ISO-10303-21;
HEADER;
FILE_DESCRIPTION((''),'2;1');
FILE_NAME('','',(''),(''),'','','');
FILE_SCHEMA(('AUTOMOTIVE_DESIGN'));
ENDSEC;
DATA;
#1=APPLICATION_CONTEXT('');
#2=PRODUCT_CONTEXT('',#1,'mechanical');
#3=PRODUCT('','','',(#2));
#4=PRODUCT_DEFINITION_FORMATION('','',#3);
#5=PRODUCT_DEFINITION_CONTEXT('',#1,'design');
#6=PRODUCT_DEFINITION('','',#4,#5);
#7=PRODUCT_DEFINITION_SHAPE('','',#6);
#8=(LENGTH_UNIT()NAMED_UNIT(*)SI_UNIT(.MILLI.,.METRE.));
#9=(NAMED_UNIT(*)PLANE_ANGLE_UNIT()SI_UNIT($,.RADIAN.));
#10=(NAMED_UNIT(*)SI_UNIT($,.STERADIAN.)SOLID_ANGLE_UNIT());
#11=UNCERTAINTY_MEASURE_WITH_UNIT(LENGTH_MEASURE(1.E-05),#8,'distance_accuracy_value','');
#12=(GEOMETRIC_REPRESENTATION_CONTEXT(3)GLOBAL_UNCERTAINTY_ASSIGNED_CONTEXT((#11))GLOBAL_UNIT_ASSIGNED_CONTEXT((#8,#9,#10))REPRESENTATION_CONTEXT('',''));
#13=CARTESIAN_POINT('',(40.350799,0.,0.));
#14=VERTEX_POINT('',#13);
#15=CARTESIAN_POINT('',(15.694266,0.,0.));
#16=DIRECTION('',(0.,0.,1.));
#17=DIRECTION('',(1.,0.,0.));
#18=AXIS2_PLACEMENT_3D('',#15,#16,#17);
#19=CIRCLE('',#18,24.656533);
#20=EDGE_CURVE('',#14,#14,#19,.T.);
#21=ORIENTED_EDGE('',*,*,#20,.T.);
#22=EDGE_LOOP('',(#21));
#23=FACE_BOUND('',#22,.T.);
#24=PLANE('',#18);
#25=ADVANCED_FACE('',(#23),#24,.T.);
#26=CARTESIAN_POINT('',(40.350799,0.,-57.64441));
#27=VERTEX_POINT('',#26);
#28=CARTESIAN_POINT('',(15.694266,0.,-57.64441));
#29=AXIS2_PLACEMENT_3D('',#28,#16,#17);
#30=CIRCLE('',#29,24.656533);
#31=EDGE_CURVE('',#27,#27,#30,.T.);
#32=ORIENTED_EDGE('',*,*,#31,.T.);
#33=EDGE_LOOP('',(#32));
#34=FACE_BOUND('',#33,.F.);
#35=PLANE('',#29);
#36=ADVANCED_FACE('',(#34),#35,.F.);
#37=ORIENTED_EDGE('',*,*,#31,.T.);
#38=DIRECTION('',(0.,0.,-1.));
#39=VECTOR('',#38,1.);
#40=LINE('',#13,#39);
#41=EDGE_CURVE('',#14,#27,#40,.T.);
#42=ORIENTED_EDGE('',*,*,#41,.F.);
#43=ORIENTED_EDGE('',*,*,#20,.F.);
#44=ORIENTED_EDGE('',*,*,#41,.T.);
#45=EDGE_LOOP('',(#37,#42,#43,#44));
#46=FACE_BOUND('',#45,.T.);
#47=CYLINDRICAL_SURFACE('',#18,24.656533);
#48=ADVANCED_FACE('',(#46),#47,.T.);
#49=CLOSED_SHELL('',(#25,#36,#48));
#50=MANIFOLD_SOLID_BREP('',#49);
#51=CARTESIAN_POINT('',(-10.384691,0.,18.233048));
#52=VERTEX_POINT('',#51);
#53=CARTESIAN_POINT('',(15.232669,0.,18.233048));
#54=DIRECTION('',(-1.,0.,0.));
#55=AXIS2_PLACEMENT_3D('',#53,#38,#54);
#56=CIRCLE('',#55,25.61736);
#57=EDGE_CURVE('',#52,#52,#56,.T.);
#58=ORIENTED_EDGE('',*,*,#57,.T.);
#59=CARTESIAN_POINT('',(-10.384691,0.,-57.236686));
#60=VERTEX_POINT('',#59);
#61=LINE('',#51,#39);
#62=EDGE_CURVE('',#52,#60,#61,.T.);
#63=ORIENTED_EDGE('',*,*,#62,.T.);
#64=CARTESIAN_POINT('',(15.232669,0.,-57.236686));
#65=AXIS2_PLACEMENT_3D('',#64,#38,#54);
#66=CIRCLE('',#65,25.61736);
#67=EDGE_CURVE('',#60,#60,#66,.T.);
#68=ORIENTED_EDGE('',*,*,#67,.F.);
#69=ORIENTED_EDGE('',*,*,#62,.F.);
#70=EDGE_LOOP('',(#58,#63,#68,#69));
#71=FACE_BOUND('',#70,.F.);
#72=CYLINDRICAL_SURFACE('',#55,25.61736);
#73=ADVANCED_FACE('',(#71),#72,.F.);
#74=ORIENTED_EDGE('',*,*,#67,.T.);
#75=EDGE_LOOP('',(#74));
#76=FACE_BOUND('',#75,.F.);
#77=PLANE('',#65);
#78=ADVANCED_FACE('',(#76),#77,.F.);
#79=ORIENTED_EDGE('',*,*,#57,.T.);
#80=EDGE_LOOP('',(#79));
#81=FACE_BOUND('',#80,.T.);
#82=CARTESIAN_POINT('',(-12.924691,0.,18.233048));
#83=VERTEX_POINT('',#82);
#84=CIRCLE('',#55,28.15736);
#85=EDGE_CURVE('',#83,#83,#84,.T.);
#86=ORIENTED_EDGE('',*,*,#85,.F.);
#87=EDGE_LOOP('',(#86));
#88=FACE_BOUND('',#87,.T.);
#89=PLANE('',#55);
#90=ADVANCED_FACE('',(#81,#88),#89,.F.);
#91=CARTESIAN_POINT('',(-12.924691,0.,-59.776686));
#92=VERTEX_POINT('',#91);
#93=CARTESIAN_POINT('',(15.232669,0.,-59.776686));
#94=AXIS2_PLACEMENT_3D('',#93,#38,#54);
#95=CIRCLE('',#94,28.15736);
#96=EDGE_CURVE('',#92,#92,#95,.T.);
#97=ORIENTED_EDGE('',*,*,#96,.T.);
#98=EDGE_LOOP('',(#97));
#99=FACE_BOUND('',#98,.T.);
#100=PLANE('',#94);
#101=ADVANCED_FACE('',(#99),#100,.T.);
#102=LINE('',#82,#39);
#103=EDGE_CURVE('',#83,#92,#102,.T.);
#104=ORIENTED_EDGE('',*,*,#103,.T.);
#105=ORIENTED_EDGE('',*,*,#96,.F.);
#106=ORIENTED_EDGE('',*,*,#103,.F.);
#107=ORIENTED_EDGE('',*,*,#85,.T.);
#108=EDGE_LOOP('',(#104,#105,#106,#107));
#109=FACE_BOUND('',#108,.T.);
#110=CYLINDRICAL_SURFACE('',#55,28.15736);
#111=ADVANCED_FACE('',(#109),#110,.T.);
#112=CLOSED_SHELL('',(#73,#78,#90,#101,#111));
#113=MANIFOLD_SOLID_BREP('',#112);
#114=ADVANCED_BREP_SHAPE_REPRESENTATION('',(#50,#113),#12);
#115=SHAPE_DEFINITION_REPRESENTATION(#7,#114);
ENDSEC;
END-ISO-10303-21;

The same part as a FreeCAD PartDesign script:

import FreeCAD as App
import Part
import Sketcher

V = App.Vector


def faces_at(feature, points):
    """Names of the faces that lie closest to the given points."""
    faces = feature.Shape.Faces
    near = lambda p: min(range(len(faces)), key=lambda i: faces[i].distToShape(Part.Vertex(*p))[0])
    return sorted({f"Face{near(p) + 1}" for p in points})

doc = App.newDocument("Part")
params = doc.addObject("Spreadsheet::Sheet", "Params")
for row, (alias, value) in enumerate([
    ("revolution_angle", "360 deg"),
    ("thickness_wall", "0.1 in"),
    ("pad1_length", "57.64441 mm"),
], start=1):
    params.set(f"A{row}", alias)
    params.set(f"B{row}", "=" + value)
    params.setAlias(f"B{row}", alias)

body = doc.addObject("PartDesign::Body", "Body")

sketch1 = body.newObject("Sketcher::SketchObject", "Sketch")
sketch1.AttachmentSupport = (doc.getObject("XZ_Plane"), [""])
sketch1.MapMode = "FlatFace"
sketch1.addGeometry(Part.LineSegment(V(15, 18, 0), V(-13, 18, 0)), False)
sketch1.addGeometry(Part.LineSegment(V(-13, 18, 0), V(-13, -60, 0)), False)
sketch1.addGeometry(Part.LineSegment(V(-13, -60, 0), V(15, -60, 0)), False)
sketch1.addGeometry(Part.LineSegment(V(15, -60, 0), V(15, 18, 0)), False)
sketch1.addGeometry(Part.LineSegment(V(15, 18, 0), V(15, -60, 0)), True)
sketch1.addConstraint(Sketcher.Constraint("Coincident", 0, 2, 1, 1))
sketch1.addConstraint(Sketcher.Constraint("Coincident", 1, 2, 2, 1))
sketch1.addConstraint(Sketcher.Constraint("Coincident", 2, 2, 3, 1))
sketch1.addConstraint(Sketcher.Constraint("Coincident", 3, 2, 0, 1))
sketch1.addConstraint(Sketcher.Constraint("Horizontal", 0))
sketch1.addConstraint(Sketcher.Constraint("Vertical", 1))
sketch1.addConstraint(Sketcher.Constraint("Horizontal", 2))
sketch1.addConstraint(Sketcher.Constraint("Vertical", 3))
sketch1.addConstraint(Sketcher.Constraint("Vertical", 4))
sketch1.addConstraint(Sketcher.Constraint("Coincident", 4, 1, 3, 2))
sketch1.addConstraint(Sketcher.Constraint("Horizontal", 1, 2, 4, 2))
sketch1.addConstraint(Sketcher.Constraint("DistanceX", 0, 2, 0, 1, 28.15736))
sketch1.addConstraint(Sketcher.Constraint("DistanceY", 1, 2, 1, 1, 78.009734))
sketch1.addConstraint(Sketcher.Constraint("DistanceX", 0, 2, -1, 1, 12.924691))
sketch1.addConstraint(Sketcher.Constraint("DistanceY", -1, 1, 0, 2, 18.233048))
revolution = body.newObject("PartDesign::Revolution", "Revolution")
revolution.Profile = sketch1
revolution.ReferenceAxis = (sketch1, ["Axis0"])
revolution.setExpression("Angle", "Params.revolution_angle")
doc.recompute()

thickness = body.newObject("PartDesign::Thickness", "Thickness")
thickness.Base = (revolution, faces_at(revolution, [(15.233, 0, 18.233)]))
thickness.setExpression("Value", "Params.thickness_wall")
thickness.Reversed = True
thickness.Join = "Arc"
body2 = doc.addObject("PartDesign::Body", "Body001")

sketch2 = body2.newObject("Sketcher::SketchObject", "Sketch001")
sketch2.AttachmentSupport = (doc.getObject("XY_Plane001"), [""])
sketch2.MapMode = "FlatFace"
sketch2.addGeometry(Part.Circle(V(16, 0, 0), V(0, 0, 1), 25), False)
sketch2.addConstraint(Sketcher.Constraint("PointOnObject", 0, 3, -1))
sketch2.addConstraint(Sketcher.Constraint("Diameter", 0, 49.313066))
sketch2.addConstraint(Sketcher.Constraint("DistanceX", -1, 1, 0, 3, 15.694266))
pad1 = body2.newObject("PartDesign::Pad", "Pad")
pad1.Profile = sketch2
pad1.setExpression("Length", "Params.pad1_length")
pad1.Reversed = True

doc.recompute()
